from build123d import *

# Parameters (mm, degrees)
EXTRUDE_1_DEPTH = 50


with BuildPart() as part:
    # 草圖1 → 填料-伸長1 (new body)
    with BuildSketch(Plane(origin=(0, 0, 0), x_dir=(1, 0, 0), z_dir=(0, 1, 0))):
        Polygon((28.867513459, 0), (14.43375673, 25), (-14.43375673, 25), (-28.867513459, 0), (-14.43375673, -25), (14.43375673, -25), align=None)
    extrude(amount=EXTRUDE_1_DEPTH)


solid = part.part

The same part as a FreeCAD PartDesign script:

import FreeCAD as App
import Part
import Sketcher
from FreeCAD import Vector
Q = App.Units.Quantity

doc = App.newDocument("Part")
body = doc.addObject("PartDesign::Body", "Body")

# Sketch on XZ plane
sketch1 = body.newObject("Sketcher::SketchObject", "Sketch")
sketch1.AttachmentSupport = (doc.getObject("XZ_Plane"), [""])
sketch1.MapMode = "FlatFace"
sketch1.addGeometry([
    Part.LineSegment(Vector(29, 0, 0), Vector(14, -25, 0)),  # 0
    Part.LineSegment(Vector(14, -25, 0), Vector(-14, -25, 0)),  # 1
    Part.LineSegment(Vector(-14, -25, 0), Vector(-29, 0, 0)),  # 2
    Part.LineSegment(Vector(-29, 0, 0), Vector(-14, 25, 0)),  # 3
    Part.LineSegment(Vector(-14, 25, 0), Vector(14, 25, 0)),  # 4
    Part.LineSegment(Vector(14, 25, 0), Vector(29, 0, 0)),  # 5
], False)
sketch1.addConstraint([
    Sketcher.Constraint("Coincident", 0, 2, 1, 1),
    Sketcher.Constraint("Coincident", 1, 2, 2, 1),
    Sketcher.Constraint("Coincident", 2, 2, 3, 1),
    Sketcher.Constraint("Coincident", 3, 2, 4, 1),
    Sketcher.Constraint("Coincident", 4, 2, 5, 1),
    Sketcher.Constraint("Coincident", 5, 2, 0, 1),
    Sketcher.Constraint("Horizontal", 1),
    Sketcher.Constraint("Horizontal", 4),
    Sketcher.Constraint("Symmetric", 0, 2, 3, 2, -1, 1),
    Sketcher.Constraint("Symmetric", 2, 2, 5, 2, -1, 1),
    Sketcher.Constraint("PointOnObject", 2, 2, -1),
    Sketcher.Constraint("Parallel", 2, 5),
    Sketcher.Constraint("Vertical", 1, 2, 3, 2),
    Sketcher.Constraint("Angle", 0, Q("-120 deg")),
    Sketcher.Constraint("DistanceY", 0, 2, -1, 1, 25.0),
    Sketcher.Constraint("DistanceX", 1, 2, 1, 1, 28.867513),
])
pad1 = body.newObject("PartDesign::Pad", "Pad")
pad1.Profile = sketch1
pad1.Length = 50
pad1.Reversed = True

doc.recompute()
